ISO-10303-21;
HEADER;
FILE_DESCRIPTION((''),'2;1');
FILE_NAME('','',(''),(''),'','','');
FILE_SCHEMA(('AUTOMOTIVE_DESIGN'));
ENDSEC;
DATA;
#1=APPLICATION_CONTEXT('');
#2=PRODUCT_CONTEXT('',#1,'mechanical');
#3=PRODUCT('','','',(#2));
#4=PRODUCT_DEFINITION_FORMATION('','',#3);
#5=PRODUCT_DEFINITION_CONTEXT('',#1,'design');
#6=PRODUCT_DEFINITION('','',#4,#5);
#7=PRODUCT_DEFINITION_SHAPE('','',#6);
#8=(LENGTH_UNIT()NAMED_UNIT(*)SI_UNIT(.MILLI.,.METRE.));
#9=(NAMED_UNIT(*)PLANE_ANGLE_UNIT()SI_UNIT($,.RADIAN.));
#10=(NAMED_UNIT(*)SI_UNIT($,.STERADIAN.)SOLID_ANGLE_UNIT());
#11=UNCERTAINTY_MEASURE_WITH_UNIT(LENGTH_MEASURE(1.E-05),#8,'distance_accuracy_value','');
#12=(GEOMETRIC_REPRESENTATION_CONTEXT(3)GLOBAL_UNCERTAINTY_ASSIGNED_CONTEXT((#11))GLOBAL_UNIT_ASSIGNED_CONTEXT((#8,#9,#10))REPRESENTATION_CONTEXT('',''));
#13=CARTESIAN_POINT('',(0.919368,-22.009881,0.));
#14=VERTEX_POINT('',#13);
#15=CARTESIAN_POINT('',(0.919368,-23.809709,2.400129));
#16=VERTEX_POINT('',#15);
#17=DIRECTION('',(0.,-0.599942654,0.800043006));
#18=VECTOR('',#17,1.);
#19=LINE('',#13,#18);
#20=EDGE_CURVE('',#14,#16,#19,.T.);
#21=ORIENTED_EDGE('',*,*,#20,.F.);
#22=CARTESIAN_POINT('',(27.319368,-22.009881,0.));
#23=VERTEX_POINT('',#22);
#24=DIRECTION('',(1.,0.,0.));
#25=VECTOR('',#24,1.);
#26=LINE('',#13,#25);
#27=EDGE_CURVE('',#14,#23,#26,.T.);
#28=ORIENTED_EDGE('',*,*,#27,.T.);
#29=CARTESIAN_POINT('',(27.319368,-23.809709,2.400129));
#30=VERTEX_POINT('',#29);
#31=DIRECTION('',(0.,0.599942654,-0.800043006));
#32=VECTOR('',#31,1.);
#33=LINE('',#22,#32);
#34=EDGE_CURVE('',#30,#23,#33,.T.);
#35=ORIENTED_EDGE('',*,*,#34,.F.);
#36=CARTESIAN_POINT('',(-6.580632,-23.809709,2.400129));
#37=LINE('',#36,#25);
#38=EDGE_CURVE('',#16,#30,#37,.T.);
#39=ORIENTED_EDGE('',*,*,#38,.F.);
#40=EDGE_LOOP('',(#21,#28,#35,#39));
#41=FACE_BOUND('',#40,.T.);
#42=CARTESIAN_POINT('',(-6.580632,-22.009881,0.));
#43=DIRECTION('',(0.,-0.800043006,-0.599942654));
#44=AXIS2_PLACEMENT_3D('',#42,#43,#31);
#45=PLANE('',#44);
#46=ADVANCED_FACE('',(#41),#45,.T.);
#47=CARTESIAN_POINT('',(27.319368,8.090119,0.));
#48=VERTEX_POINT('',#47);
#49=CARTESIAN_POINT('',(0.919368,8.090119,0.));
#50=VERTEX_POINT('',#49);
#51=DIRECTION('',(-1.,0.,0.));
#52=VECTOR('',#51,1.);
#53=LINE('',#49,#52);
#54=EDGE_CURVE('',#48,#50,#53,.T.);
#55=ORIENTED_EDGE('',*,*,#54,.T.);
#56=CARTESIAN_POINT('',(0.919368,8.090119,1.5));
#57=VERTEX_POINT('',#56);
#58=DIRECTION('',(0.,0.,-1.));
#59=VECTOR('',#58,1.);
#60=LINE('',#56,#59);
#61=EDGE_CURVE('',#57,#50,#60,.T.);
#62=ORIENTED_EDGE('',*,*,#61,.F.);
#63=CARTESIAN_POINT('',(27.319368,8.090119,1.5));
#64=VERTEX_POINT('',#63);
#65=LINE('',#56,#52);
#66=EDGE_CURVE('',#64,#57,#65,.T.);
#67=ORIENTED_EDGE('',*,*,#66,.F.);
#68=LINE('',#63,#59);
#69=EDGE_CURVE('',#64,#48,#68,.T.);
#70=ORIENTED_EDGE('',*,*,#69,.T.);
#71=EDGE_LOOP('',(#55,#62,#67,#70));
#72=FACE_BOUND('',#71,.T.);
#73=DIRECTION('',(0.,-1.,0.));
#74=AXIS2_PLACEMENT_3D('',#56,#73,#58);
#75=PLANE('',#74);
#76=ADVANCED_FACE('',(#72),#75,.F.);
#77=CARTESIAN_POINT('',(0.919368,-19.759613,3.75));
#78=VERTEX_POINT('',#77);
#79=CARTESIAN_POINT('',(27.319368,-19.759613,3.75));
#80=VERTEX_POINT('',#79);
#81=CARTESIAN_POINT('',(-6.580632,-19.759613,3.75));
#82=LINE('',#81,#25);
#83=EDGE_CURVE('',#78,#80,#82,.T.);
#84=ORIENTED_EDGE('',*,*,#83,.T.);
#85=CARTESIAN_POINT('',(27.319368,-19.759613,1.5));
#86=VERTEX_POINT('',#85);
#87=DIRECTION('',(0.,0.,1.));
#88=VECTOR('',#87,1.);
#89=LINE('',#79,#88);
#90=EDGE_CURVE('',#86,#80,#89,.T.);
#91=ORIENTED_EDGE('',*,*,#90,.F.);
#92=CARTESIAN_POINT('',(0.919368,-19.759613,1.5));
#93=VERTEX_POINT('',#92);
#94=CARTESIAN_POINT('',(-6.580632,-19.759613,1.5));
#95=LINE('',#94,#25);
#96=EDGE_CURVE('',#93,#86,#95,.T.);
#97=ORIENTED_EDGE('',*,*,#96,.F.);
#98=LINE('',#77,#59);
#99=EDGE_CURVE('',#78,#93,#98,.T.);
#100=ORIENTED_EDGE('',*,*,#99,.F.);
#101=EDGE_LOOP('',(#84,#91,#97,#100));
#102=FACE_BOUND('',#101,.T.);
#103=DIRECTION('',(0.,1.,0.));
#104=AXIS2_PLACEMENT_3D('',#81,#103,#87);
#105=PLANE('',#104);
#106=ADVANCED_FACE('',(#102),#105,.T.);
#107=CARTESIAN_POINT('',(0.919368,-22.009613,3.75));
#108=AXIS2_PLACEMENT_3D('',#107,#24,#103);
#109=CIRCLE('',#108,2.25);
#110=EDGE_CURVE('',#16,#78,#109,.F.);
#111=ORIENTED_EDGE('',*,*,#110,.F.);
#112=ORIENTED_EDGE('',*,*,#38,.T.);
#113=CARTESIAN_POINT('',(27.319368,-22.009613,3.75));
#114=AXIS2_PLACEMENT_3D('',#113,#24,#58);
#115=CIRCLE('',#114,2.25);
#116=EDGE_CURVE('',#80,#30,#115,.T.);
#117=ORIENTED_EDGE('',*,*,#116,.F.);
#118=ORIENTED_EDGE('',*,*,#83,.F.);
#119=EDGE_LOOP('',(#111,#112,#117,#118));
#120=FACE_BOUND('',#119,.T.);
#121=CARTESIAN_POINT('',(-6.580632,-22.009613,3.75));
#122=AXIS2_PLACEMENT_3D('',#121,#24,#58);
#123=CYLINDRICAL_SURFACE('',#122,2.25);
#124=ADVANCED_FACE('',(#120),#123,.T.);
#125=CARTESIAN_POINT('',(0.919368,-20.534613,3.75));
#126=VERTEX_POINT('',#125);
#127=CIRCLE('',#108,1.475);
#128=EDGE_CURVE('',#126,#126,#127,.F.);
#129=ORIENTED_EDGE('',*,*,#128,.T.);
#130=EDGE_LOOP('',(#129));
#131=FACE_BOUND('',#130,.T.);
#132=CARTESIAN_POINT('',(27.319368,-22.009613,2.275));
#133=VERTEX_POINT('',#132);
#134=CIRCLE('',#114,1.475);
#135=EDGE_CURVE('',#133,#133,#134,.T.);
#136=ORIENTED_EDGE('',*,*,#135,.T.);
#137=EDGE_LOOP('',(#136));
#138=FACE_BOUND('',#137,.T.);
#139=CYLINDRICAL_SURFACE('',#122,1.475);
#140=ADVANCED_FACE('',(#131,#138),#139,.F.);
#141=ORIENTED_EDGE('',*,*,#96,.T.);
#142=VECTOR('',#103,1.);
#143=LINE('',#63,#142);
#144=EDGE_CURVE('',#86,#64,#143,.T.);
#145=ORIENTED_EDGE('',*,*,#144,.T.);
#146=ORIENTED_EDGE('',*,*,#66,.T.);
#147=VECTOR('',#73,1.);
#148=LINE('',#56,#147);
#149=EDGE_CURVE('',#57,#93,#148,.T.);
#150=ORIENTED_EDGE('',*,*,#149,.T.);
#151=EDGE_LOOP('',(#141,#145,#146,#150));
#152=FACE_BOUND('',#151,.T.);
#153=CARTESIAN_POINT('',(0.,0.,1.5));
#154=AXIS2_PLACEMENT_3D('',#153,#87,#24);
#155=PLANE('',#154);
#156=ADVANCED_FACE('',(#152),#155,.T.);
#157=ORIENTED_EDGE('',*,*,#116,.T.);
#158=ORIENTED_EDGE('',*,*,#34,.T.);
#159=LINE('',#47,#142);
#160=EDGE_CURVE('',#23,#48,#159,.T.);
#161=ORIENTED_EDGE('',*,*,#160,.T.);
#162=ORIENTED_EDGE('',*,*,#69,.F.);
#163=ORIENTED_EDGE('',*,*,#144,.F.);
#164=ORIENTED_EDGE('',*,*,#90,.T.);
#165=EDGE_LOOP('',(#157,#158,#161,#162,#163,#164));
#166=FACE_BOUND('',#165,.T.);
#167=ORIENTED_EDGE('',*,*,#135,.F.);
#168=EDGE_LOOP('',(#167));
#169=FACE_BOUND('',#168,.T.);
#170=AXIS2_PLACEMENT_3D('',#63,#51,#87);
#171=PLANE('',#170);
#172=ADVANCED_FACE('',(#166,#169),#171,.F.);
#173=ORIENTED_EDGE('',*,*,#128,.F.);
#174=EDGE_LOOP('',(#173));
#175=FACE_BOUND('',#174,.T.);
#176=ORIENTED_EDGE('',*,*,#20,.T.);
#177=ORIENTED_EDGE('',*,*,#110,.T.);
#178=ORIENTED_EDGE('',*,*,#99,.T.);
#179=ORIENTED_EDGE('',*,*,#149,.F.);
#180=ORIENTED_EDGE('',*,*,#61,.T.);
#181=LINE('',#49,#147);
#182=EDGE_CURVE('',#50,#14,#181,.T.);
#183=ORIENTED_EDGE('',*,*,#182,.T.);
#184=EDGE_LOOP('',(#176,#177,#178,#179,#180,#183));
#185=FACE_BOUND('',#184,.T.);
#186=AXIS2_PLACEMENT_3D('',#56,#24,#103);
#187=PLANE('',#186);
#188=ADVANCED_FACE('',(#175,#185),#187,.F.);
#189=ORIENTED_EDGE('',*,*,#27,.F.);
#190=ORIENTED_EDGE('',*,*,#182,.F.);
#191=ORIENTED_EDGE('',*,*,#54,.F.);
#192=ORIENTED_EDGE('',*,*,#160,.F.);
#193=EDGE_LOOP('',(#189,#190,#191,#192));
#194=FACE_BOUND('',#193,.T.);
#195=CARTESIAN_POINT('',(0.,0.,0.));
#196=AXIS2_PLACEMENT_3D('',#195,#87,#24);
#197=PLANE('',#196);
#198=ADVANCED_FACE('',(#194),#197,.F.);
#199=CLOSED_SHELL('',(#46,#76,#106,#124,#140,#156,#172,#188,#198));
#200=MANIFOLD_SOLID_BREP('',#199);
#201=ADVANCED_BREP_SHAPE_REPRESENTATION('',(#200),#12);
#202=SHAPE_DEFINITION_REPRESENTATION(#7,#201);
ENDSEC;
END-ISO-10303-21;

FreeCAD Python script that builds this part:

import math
import FreeCAD as App
import Part
import Sketcher
from FreeCAD import Vector
Q = App.Units.Quantity


def add_polygon(sketch, points):
    """Adds a closed chain of lines whose ends are joined by coincident constraints."""
    first, n = sketch.GeometryCount, len(points)
    for a, b in zip(points, points[1:] + points[:1]):
        sketch.addGeometry(Part.LineSegment(App.Vector(*a, 0), App.Vector(*b, 0)), False)
    for i in range(n):
        sketch.addConstraint(Sketcher.Constraint("Coincident", first + i, 2, first + (i + 1) % n, 1))

doc = App.newDocument("Part")
body = doc.addObject("PartDesign::Body", "Body")

# Sketch on XY plane
sketch1 = body.newObject("Sketcher::SketchObject", "Sketch")
sketch1.AttachmentSupport = (doc.getObject("XY_Plane"), [""])
sketch1.MapMode = "FlatFace"
add_polygon(sketch1, [(1, 8), (1, -22), (27, -22), (27, 8)])  # lines 0-3
sketch1.addConstraint([
    Sketcher.Constraint("Vertical", 0),
    Sketcher.Constraint("Horizontal", 1),
    Sketcher.Constraint("Vertical", 2),
    Sketcher.Constraint("Horizontal", 3),
    Sketcher.Constraint("DistanceX", 1, 1, 1, 2, Q("26.4 mm")),
    Sketcher.Constraint("DistanceY", 0, 2, 0, 1, Q("30.1 mm")),
    Sketcher.Constraint("DistanceY", 0, 2, -1, 1, Q("22.009881 mm")),
    Sketcher.Constraint("DistanceX", -1, 1, 0, 2, Q("0.919368 mm")),
])
pad1 = body.newObject("PartDesign::Pad", "Pad")
pad1.Profile = sketch1
pad1.Length = 1.5

# Sketch on YZ plane
sketch2 = body.newObject("Sketcher::SketchObject", "Sketch001")
sketch2.AttachmentSupport = (doc.getObject("YZ_Plane"), [""])
sketch2.MapMode = "FlatFace"
sketch2.AttachmentOffset = App.Placement(Vector(0, 0, 27.319368), App.Rotation())
sketch2.addGeometry([
    Part.LineSegment(Vector(-23.8, 2.4, 0), Vector(-22, 0, 0)),  # 0
    Part.LineSegment(Vector(-22, 0, 0), Vector(-19.8, 1.5, 0)),  # 1
    Part.LineSegment(Vector(-19.8, 1.5, 0), Vector(-19.8, 3.8, 0)),  # 2
    Part.ArcOfCircle(Part.Circle(Vector(-22, 3.8, 0), Vector(0, 0, 1), 2.2), math.radians(0), math.radians(217)),  # 3
    Part.Circle(Vector(-22, 3.8, 0), Vector(0, 0, 1), 1.5),  # 4
], False)
sketch2.addConstraint([
    Sketcher.Constraint("Coincident", 0, 2, 1, 1),
    Sketcher.Constraint("Coincident", 1, 2, 2, 1),
    Sketcher.Constraint("Tangent", 2, 2, 3, 1),
    Sketcher.Constraint("Tangent", 3, 2, 0, 1),
    Sketcher.Constraint("Vertical", 2),
    Sketcher.Constraint("Coincident", 4, 3, 3, 3),
    Sketcher.Constraint("PointOnObject", 0, 2, -1),
    Sketcher.Constraint("Diameter", 4, Q("2.95 mm")),
    Sketcher.Constraint("Radius", 3, Q("2.25 mm")),
    Sketcher.Constraint("Distance", 0, Q("3 mm")),
    Sketcher.Constraint("DistanceY", 2, 1, 2, 2, Q("2.25 mm")),
    Sketcher.Constraint("DistanceX", 0, 2, -1, 1, Q("22.009881 mm")),
    Sketcher.Constraint("DistanceX", 3, 2, -1, 1, Q("23.809709 mm")),
])
pad2 = body.newObject("PartDesign::Pad", "Pad001")
pad2.Profile = sketch2
pad2.Length = 26.4
pad2.Reversed = True

doc.recompute()
